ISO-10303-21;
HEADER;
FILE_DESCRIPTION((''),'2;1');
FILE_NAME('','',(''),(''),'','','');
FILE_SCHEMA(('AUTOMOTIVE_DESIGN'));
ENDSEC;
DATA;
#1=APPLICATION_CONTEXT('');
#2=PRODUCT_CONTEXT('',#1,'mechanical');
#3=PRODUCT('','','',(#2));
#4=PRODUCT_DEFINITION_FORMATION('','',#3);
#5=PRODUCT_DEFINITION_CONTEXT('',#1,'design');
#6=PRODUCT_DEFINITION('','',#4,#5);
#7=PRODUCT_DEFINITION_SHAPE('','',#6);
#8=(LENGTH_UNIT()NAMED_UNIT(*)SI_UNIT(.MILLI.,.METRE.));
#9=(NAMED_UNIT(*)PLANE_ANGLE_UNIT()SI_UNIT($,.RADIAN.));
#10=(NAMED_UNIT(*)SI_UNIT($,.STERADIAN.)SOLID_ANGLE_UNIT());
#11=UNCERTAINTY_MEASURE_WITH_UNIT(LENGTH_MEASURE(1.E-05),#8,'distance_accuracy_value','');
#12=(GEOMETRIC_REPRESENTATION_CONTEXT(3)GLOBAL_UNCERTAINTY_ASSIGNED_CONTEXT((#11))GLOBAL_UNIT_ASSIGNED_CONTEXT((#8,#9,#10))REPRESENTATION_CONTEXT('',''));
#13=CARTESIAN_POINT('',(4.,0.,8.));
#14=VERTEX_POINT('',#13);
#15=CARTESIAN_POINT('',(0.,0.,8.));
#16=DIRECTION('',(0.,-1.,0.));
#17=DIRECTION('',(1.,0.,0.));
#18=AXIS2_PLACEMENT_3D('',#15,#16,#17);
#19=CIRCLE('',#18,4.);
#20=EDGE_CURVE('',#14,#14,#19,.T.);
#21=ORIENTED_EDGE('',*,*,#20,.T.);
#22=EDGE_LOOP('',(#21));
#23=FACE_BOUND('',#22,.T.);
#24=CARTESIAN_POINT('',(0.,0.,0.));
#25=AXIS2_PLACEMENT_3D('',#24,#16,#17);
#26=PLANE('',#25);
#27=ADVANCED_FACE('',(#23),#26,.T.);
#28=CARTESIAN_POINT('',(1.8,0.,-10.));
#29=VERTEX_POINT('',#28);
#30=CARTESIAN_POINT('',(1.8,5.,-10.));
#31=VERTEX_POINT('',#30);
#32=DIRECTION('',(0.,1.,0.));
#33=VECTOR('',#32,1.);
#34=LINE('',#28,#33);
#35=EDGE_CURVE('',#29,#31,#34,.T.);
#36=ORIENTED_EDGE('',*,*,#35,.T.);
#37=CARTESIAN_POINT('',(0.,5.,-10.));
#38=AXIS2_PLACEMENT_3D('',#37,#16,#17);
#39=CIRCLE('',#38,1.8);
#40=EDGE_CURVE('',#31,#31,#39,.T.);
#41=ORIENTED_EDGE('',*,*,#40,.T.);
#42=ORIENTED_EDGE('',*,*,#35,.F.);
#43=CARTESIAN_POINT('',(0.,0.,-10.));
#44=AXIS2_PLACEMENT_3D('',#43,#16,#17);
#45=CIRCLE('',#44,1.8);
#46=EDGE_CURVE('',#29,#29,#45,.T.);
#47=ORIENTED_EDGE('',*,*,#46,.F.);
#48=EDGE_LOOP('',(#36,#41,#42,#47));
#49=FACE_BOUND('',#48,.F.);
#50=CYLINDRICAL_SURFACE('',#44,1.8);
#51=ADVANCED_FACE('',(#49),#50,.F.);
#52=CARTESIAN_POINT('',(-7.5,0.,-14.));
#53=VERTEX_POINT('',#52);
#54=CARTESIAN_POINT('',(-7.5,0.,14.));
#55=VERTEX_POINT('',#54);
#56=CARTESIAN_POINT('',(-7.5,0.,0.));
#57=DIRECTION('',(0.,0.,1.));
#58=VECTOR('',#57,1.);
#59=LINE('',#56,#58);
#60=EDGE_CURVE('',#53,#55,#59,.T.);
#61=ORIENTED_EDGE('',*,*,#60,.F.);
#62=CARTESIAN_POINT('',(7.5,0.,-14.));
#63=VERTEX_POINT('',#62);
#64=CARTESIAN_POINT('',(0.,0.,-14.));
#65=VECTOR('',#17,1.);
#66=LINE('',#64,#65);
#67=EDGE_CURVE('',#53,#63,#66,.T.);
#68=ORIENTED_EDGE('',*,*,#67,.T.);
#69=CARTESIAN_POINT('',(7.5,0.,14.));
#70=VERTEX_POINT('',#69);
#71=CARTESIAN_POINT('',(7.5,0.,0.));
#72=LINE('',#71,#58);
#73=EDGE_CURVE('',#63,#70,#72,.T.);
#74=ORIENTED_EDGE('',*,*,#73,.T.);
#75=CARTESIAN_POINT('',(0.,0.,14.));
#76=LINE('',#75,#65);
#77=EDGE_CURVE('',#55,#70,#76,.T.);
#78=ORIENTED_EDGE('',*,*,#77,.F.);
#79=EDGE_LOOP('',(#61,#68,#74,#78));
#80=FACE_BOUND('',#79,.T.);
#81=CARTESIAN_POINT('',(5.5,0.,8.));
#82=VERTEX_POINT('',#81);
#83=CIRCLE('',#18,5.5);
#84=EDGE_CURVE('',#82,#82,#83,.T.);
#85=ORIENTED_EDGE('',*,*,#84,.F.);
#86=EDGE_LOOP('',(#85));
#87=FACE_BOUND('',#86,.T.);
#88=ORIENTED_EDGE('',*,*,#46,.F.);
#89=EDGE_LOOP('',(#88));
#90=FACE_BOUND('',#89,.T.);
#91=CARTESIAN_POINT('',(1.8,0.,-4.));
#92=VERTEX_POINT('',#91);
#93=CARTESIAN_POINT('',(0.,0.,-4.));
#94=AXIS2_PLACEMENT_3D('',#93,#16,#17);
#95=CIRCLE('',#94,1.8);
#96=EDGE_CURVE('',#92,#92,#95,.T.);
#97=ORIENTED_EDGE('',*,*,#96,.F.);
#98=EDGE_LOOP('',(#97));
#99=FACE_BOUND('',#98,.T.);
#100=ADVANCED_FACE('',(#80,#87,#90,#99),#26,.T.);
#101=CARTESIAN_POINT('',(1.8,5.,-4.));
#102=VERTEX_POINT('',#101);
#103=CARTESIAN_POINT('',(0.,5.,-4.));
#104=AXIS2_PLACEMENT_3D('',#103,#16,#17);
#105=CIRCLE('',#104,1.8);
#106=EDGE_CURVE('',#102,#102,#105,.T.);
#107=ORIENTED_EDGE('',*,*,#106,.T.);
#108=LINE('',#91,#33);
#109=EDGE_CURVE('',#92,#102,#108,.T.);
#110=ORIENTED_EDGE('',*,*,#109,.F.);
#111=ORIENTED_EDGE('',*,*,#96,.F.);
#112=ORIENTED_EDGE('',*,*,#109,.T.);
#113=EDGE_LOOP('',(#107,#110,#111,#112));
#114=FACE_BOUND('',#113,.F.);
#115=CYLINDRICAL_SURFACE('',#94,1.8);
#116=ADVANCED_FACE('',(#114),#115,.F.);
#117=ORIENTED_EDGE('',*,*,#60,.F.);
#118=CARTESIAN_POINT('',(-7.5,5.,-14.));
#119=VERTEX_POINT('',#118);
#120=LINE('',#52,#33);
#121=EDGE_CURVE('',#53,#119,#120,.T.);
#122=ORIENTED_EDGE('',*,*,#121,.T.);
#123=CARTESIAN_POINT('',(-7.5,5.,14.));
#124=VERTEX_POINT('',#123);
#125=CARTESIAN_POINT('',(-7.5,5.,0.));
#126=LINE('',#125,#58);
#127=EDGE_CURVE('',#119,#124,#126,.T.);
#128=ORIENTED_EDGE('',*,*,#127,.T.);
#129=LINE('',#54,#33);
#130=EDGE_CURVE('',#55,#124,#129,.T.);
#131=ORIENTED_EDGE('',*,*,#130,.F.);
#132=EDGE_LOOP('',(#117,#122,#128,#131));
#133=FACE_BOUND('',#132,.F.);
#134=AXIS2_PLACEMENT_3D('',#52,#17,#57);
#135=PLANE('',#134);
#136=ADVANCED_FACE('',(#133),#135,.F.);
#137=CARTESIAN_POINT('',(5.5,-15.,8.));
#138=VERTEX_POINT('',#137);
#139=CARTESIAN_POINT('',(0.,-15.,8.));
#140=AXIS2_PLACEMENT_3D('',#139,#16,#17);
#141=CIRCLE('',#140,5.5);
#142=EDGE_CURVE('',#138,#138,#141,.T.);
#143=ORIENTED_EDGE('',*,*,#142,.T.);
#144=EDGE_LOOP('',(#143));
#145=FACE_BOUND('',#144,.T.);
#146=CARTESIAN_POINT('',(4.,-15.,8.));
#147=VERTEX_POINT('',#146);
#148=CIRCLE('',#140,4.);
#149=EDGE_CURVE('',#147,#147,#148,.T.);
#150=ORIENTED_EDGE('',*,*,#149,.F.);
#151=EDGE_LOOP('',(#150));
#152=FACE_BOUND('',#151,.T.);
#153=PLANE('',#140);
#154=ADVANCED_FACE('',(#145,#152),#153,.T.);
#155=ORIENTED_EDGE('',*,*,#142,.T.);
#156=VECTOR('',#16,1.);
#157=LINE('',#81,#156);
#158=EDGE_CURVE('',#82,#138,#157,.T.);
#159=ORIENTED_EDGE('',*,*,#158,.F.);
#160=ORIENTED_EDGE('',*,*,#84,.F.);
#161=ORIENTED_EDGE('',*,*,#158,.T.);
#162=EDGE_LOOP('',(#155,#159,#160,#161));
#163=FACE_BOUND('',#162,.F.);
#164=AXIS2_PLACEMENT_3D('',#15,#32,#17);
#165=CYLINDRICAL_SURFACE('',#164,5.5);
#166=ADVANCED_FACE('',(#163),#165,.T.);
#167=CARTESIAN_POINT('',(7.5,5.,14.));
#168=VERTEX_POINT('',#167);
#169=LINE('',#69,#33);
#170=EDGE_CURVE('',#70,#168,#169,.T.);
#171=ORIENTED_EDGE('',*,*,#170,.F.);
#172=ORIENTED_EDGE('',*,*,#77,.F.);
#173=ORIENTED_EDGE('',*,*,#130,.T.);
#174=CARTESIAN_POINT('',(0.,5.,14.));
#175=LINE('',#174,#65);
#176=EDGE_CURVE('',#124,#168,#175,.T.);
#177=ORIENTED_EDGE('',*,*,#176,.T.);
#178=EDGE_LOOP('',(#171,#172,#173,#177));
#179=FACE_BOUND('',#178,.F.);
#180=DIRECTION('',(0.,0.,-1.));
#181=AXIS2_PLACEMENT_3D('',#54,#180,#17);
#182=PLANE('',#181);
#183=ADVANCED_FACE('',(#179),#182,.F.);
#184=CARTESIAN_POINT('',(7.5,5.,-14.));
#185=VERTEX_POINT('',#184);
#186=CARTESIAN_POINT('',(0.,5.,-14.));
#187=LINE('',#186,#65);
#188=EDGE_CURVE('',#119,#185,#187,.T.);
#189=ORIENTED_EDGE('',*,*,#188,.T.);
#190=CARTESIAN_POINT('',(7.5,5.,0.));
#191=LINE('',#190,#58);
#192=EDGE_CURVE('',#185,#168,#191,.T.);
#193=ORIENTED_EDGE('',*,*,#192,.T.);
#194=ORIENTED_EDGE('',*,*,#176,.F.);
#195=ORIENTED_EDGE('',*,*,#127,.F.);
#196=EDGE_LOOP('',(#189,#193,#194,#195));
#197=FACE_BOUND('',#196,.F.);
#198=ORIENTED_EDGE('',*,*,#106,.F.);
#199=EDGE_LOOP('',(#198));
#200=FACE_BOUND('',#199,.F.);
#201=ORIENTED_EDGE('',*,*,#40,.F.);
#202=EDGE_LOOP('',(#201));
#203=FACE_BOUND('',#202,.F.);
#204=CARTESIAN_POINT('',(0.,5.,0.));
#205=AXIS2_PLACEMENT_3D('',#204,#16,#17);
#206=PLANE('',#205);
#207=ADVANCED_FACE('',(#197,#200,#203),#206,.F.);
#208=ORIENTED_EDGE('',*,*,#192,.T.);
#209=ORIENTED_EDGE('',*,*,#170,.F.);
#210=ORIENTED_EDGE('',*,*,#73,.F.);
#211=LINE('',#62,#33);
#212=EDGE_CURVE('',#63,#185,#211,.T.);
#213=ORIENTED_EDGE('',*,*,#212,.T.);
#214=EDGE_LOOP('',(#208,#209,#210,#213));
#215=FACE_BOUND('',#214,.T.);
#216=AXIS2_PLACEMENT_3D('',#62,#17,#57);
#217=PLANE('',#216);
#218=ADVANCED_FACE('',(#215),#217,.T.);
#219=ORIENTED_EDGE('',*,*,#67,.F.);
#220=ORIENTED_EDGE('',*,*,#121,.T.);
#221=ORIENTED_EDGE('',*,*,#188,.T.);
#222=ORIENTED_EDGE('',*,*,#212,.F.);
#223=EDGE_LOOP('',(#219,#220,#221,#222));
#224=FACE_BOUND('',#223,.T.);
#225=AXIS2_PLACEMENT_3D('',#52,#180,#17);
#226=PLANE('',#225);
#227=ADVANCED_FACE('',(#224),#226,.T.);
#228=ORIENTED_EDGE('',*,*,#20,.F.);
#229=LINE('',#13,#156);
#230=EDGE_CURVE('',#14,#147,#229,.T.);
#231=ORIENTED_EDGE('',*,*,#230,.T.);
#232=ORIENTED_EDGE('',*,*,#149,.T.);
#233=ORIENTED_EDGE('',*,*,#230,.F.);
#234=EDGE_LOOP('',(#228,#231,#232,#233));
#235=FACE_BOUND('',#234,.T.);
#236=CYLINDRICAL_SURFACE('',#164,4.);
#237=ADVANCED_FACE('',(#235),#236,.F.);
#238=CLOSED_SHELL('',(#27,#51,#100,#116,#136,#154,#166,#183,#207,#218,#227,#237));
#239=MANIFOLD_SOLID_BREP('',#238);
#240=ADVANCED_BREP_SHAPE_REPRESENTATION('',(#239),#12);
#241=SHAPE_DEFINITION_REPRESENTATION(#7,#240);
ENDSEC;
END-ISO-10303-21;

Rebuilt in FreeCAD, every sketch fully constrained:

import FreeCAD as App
import Part
import Sketcher

V = App.Vector
Q = App.Units.Quantity

doc = App.newDocument("Part")
body = doc.addObject("PartDesign::Body", "Body")

sketch1 = body.newObject("Sketcher::SketchObject", "Sketch")
sketch1.AttachmentSupport = (doc.getObject("XZ_Plane"), [""])
sketch1.MapMode = "FlatFace"
sketch1.addGeometry(Part.LineSegment(V(-7.5, 14, 0), V(-7.5, -14, 0)), False)
sketch1.addGeometry(Part.LineSegment(V(-7.5, -14, 0), V(7.5, -14, 0)), False)
sketch1.addGeometry(Part.LineSegment(V(7.5, -14, 0), V(7.5, 14, 0)), False)
sketch1.addGeometry(Part.LineSegment(V(7.5, 14, 0), V(-7.5, 14, 0)), False)
sketch1.addGeometry(Part.Circle(V(0, -10, 0), V(0, 0, 1), 1.8), False)
sketch1.addGeometry(Part.Circle(V(0, -4, 0), V(0, 0, 1), 1.8), False)
sketch1.addConstraint(Sketcher.Constraint("Coincident", 0, 2, 1, 1))
sketch1.addConstraint(Sketcher.Constraint("Coincident", 1, 2, 2, 1))
sketch1.addConstraint(Sketcher.Constraint("Coincident", 2, 2, 3, 1))
sketch1.addConstraint(Sketcher.Constraint("Coincident", 3, 2, 0, 1))
sketch1.addConstraint(Sketcher.Constraint("Vertical", 0))
sketch1.addConstraint(Sketcher.Constraint("Horizontal", 1))
sketch1.addConstraint(Sketcher.Constraint("Vertical", 2))
sketch1.addConstraint(Sketcher.Constraint("Horizontal", 3))
sketch1.addConstraint(Sketcher.Constraint("Equal", 4, 5))
sketch1.addConstraint(Sketcher.Constraint("Symmetric", 0, 2, 2, 2, -1, 1))
sketch1.addConstraint(Sketcher.Constraint("PointOnObject", 4, 3, -2))
sketch1.addConstraint(Sketcher.Constraint("PointOnObject", 5, 3, -2))
sketch1.addConstraint(Sketcher.Constraint("Diameter", 4, Q("3.6 mm")))
sketch1.addConstraint(Sketcher.Constraint("DistanceX", 1, 1, 1, 2, Q("15 mm")))
sketch1.addConstraint(Sketcher.Constraint("DistanceY", 0, 2, 0, 1, Q("28 mm")))
sketch1.addConstraint(Sketcher.Constraint("DistanceY", 4, 3, -1, 1, Q("10 mm")))
sketch1.addConstraint(Sketcher.Constraint("DistanceY", 5, 3, -1, 1, Q("4 mm")))
pad1 = body.newObject("PartDesign::Pad", "Pad")
pad1.Profile = sketch1
pad1.Length = 5
pad1.Reversed = True

sketch2 = body.newObject("Sketcher::SketchObject", "Sketch001")
sketch2.AttachmentSupport = (doc.getObject("XZ_Plane"), [""])
sketch2.MapMode = "FlatFace"
sketch2.addGeometry(Part.Circle(V(0, 8, 0), V(0, 0, 1), 5.5), False)
sketch2.addGeometry(Part.Circle(V(0, 8, 0), V(0, 0, 1), 4), False)
sketch2.addConstraint(Sketcher.Constraint("Coincident", 1, 3, 0, 3))
sketch2.addConstraint(Sketcher.Constraint("PointOnObject", 0, 3, -2))
sketch2.addConstraint(Sketcher.Constraint("Diameter", 0, Q("11 mm")))
sketch2.addConstraint(Sketcher.Constraint("Diameter", 1, Q("8 mm")))
sketch2.addConstraint(Sketcher.Constraint("DistanceY", -1, 1, 0, 3, Q("8 mm")))
pad2 = body.newObject("PartDesign::Pad", "Pad001")
pad2.Profile = sketch2
pad2.Length = 15

doc.recompute()
